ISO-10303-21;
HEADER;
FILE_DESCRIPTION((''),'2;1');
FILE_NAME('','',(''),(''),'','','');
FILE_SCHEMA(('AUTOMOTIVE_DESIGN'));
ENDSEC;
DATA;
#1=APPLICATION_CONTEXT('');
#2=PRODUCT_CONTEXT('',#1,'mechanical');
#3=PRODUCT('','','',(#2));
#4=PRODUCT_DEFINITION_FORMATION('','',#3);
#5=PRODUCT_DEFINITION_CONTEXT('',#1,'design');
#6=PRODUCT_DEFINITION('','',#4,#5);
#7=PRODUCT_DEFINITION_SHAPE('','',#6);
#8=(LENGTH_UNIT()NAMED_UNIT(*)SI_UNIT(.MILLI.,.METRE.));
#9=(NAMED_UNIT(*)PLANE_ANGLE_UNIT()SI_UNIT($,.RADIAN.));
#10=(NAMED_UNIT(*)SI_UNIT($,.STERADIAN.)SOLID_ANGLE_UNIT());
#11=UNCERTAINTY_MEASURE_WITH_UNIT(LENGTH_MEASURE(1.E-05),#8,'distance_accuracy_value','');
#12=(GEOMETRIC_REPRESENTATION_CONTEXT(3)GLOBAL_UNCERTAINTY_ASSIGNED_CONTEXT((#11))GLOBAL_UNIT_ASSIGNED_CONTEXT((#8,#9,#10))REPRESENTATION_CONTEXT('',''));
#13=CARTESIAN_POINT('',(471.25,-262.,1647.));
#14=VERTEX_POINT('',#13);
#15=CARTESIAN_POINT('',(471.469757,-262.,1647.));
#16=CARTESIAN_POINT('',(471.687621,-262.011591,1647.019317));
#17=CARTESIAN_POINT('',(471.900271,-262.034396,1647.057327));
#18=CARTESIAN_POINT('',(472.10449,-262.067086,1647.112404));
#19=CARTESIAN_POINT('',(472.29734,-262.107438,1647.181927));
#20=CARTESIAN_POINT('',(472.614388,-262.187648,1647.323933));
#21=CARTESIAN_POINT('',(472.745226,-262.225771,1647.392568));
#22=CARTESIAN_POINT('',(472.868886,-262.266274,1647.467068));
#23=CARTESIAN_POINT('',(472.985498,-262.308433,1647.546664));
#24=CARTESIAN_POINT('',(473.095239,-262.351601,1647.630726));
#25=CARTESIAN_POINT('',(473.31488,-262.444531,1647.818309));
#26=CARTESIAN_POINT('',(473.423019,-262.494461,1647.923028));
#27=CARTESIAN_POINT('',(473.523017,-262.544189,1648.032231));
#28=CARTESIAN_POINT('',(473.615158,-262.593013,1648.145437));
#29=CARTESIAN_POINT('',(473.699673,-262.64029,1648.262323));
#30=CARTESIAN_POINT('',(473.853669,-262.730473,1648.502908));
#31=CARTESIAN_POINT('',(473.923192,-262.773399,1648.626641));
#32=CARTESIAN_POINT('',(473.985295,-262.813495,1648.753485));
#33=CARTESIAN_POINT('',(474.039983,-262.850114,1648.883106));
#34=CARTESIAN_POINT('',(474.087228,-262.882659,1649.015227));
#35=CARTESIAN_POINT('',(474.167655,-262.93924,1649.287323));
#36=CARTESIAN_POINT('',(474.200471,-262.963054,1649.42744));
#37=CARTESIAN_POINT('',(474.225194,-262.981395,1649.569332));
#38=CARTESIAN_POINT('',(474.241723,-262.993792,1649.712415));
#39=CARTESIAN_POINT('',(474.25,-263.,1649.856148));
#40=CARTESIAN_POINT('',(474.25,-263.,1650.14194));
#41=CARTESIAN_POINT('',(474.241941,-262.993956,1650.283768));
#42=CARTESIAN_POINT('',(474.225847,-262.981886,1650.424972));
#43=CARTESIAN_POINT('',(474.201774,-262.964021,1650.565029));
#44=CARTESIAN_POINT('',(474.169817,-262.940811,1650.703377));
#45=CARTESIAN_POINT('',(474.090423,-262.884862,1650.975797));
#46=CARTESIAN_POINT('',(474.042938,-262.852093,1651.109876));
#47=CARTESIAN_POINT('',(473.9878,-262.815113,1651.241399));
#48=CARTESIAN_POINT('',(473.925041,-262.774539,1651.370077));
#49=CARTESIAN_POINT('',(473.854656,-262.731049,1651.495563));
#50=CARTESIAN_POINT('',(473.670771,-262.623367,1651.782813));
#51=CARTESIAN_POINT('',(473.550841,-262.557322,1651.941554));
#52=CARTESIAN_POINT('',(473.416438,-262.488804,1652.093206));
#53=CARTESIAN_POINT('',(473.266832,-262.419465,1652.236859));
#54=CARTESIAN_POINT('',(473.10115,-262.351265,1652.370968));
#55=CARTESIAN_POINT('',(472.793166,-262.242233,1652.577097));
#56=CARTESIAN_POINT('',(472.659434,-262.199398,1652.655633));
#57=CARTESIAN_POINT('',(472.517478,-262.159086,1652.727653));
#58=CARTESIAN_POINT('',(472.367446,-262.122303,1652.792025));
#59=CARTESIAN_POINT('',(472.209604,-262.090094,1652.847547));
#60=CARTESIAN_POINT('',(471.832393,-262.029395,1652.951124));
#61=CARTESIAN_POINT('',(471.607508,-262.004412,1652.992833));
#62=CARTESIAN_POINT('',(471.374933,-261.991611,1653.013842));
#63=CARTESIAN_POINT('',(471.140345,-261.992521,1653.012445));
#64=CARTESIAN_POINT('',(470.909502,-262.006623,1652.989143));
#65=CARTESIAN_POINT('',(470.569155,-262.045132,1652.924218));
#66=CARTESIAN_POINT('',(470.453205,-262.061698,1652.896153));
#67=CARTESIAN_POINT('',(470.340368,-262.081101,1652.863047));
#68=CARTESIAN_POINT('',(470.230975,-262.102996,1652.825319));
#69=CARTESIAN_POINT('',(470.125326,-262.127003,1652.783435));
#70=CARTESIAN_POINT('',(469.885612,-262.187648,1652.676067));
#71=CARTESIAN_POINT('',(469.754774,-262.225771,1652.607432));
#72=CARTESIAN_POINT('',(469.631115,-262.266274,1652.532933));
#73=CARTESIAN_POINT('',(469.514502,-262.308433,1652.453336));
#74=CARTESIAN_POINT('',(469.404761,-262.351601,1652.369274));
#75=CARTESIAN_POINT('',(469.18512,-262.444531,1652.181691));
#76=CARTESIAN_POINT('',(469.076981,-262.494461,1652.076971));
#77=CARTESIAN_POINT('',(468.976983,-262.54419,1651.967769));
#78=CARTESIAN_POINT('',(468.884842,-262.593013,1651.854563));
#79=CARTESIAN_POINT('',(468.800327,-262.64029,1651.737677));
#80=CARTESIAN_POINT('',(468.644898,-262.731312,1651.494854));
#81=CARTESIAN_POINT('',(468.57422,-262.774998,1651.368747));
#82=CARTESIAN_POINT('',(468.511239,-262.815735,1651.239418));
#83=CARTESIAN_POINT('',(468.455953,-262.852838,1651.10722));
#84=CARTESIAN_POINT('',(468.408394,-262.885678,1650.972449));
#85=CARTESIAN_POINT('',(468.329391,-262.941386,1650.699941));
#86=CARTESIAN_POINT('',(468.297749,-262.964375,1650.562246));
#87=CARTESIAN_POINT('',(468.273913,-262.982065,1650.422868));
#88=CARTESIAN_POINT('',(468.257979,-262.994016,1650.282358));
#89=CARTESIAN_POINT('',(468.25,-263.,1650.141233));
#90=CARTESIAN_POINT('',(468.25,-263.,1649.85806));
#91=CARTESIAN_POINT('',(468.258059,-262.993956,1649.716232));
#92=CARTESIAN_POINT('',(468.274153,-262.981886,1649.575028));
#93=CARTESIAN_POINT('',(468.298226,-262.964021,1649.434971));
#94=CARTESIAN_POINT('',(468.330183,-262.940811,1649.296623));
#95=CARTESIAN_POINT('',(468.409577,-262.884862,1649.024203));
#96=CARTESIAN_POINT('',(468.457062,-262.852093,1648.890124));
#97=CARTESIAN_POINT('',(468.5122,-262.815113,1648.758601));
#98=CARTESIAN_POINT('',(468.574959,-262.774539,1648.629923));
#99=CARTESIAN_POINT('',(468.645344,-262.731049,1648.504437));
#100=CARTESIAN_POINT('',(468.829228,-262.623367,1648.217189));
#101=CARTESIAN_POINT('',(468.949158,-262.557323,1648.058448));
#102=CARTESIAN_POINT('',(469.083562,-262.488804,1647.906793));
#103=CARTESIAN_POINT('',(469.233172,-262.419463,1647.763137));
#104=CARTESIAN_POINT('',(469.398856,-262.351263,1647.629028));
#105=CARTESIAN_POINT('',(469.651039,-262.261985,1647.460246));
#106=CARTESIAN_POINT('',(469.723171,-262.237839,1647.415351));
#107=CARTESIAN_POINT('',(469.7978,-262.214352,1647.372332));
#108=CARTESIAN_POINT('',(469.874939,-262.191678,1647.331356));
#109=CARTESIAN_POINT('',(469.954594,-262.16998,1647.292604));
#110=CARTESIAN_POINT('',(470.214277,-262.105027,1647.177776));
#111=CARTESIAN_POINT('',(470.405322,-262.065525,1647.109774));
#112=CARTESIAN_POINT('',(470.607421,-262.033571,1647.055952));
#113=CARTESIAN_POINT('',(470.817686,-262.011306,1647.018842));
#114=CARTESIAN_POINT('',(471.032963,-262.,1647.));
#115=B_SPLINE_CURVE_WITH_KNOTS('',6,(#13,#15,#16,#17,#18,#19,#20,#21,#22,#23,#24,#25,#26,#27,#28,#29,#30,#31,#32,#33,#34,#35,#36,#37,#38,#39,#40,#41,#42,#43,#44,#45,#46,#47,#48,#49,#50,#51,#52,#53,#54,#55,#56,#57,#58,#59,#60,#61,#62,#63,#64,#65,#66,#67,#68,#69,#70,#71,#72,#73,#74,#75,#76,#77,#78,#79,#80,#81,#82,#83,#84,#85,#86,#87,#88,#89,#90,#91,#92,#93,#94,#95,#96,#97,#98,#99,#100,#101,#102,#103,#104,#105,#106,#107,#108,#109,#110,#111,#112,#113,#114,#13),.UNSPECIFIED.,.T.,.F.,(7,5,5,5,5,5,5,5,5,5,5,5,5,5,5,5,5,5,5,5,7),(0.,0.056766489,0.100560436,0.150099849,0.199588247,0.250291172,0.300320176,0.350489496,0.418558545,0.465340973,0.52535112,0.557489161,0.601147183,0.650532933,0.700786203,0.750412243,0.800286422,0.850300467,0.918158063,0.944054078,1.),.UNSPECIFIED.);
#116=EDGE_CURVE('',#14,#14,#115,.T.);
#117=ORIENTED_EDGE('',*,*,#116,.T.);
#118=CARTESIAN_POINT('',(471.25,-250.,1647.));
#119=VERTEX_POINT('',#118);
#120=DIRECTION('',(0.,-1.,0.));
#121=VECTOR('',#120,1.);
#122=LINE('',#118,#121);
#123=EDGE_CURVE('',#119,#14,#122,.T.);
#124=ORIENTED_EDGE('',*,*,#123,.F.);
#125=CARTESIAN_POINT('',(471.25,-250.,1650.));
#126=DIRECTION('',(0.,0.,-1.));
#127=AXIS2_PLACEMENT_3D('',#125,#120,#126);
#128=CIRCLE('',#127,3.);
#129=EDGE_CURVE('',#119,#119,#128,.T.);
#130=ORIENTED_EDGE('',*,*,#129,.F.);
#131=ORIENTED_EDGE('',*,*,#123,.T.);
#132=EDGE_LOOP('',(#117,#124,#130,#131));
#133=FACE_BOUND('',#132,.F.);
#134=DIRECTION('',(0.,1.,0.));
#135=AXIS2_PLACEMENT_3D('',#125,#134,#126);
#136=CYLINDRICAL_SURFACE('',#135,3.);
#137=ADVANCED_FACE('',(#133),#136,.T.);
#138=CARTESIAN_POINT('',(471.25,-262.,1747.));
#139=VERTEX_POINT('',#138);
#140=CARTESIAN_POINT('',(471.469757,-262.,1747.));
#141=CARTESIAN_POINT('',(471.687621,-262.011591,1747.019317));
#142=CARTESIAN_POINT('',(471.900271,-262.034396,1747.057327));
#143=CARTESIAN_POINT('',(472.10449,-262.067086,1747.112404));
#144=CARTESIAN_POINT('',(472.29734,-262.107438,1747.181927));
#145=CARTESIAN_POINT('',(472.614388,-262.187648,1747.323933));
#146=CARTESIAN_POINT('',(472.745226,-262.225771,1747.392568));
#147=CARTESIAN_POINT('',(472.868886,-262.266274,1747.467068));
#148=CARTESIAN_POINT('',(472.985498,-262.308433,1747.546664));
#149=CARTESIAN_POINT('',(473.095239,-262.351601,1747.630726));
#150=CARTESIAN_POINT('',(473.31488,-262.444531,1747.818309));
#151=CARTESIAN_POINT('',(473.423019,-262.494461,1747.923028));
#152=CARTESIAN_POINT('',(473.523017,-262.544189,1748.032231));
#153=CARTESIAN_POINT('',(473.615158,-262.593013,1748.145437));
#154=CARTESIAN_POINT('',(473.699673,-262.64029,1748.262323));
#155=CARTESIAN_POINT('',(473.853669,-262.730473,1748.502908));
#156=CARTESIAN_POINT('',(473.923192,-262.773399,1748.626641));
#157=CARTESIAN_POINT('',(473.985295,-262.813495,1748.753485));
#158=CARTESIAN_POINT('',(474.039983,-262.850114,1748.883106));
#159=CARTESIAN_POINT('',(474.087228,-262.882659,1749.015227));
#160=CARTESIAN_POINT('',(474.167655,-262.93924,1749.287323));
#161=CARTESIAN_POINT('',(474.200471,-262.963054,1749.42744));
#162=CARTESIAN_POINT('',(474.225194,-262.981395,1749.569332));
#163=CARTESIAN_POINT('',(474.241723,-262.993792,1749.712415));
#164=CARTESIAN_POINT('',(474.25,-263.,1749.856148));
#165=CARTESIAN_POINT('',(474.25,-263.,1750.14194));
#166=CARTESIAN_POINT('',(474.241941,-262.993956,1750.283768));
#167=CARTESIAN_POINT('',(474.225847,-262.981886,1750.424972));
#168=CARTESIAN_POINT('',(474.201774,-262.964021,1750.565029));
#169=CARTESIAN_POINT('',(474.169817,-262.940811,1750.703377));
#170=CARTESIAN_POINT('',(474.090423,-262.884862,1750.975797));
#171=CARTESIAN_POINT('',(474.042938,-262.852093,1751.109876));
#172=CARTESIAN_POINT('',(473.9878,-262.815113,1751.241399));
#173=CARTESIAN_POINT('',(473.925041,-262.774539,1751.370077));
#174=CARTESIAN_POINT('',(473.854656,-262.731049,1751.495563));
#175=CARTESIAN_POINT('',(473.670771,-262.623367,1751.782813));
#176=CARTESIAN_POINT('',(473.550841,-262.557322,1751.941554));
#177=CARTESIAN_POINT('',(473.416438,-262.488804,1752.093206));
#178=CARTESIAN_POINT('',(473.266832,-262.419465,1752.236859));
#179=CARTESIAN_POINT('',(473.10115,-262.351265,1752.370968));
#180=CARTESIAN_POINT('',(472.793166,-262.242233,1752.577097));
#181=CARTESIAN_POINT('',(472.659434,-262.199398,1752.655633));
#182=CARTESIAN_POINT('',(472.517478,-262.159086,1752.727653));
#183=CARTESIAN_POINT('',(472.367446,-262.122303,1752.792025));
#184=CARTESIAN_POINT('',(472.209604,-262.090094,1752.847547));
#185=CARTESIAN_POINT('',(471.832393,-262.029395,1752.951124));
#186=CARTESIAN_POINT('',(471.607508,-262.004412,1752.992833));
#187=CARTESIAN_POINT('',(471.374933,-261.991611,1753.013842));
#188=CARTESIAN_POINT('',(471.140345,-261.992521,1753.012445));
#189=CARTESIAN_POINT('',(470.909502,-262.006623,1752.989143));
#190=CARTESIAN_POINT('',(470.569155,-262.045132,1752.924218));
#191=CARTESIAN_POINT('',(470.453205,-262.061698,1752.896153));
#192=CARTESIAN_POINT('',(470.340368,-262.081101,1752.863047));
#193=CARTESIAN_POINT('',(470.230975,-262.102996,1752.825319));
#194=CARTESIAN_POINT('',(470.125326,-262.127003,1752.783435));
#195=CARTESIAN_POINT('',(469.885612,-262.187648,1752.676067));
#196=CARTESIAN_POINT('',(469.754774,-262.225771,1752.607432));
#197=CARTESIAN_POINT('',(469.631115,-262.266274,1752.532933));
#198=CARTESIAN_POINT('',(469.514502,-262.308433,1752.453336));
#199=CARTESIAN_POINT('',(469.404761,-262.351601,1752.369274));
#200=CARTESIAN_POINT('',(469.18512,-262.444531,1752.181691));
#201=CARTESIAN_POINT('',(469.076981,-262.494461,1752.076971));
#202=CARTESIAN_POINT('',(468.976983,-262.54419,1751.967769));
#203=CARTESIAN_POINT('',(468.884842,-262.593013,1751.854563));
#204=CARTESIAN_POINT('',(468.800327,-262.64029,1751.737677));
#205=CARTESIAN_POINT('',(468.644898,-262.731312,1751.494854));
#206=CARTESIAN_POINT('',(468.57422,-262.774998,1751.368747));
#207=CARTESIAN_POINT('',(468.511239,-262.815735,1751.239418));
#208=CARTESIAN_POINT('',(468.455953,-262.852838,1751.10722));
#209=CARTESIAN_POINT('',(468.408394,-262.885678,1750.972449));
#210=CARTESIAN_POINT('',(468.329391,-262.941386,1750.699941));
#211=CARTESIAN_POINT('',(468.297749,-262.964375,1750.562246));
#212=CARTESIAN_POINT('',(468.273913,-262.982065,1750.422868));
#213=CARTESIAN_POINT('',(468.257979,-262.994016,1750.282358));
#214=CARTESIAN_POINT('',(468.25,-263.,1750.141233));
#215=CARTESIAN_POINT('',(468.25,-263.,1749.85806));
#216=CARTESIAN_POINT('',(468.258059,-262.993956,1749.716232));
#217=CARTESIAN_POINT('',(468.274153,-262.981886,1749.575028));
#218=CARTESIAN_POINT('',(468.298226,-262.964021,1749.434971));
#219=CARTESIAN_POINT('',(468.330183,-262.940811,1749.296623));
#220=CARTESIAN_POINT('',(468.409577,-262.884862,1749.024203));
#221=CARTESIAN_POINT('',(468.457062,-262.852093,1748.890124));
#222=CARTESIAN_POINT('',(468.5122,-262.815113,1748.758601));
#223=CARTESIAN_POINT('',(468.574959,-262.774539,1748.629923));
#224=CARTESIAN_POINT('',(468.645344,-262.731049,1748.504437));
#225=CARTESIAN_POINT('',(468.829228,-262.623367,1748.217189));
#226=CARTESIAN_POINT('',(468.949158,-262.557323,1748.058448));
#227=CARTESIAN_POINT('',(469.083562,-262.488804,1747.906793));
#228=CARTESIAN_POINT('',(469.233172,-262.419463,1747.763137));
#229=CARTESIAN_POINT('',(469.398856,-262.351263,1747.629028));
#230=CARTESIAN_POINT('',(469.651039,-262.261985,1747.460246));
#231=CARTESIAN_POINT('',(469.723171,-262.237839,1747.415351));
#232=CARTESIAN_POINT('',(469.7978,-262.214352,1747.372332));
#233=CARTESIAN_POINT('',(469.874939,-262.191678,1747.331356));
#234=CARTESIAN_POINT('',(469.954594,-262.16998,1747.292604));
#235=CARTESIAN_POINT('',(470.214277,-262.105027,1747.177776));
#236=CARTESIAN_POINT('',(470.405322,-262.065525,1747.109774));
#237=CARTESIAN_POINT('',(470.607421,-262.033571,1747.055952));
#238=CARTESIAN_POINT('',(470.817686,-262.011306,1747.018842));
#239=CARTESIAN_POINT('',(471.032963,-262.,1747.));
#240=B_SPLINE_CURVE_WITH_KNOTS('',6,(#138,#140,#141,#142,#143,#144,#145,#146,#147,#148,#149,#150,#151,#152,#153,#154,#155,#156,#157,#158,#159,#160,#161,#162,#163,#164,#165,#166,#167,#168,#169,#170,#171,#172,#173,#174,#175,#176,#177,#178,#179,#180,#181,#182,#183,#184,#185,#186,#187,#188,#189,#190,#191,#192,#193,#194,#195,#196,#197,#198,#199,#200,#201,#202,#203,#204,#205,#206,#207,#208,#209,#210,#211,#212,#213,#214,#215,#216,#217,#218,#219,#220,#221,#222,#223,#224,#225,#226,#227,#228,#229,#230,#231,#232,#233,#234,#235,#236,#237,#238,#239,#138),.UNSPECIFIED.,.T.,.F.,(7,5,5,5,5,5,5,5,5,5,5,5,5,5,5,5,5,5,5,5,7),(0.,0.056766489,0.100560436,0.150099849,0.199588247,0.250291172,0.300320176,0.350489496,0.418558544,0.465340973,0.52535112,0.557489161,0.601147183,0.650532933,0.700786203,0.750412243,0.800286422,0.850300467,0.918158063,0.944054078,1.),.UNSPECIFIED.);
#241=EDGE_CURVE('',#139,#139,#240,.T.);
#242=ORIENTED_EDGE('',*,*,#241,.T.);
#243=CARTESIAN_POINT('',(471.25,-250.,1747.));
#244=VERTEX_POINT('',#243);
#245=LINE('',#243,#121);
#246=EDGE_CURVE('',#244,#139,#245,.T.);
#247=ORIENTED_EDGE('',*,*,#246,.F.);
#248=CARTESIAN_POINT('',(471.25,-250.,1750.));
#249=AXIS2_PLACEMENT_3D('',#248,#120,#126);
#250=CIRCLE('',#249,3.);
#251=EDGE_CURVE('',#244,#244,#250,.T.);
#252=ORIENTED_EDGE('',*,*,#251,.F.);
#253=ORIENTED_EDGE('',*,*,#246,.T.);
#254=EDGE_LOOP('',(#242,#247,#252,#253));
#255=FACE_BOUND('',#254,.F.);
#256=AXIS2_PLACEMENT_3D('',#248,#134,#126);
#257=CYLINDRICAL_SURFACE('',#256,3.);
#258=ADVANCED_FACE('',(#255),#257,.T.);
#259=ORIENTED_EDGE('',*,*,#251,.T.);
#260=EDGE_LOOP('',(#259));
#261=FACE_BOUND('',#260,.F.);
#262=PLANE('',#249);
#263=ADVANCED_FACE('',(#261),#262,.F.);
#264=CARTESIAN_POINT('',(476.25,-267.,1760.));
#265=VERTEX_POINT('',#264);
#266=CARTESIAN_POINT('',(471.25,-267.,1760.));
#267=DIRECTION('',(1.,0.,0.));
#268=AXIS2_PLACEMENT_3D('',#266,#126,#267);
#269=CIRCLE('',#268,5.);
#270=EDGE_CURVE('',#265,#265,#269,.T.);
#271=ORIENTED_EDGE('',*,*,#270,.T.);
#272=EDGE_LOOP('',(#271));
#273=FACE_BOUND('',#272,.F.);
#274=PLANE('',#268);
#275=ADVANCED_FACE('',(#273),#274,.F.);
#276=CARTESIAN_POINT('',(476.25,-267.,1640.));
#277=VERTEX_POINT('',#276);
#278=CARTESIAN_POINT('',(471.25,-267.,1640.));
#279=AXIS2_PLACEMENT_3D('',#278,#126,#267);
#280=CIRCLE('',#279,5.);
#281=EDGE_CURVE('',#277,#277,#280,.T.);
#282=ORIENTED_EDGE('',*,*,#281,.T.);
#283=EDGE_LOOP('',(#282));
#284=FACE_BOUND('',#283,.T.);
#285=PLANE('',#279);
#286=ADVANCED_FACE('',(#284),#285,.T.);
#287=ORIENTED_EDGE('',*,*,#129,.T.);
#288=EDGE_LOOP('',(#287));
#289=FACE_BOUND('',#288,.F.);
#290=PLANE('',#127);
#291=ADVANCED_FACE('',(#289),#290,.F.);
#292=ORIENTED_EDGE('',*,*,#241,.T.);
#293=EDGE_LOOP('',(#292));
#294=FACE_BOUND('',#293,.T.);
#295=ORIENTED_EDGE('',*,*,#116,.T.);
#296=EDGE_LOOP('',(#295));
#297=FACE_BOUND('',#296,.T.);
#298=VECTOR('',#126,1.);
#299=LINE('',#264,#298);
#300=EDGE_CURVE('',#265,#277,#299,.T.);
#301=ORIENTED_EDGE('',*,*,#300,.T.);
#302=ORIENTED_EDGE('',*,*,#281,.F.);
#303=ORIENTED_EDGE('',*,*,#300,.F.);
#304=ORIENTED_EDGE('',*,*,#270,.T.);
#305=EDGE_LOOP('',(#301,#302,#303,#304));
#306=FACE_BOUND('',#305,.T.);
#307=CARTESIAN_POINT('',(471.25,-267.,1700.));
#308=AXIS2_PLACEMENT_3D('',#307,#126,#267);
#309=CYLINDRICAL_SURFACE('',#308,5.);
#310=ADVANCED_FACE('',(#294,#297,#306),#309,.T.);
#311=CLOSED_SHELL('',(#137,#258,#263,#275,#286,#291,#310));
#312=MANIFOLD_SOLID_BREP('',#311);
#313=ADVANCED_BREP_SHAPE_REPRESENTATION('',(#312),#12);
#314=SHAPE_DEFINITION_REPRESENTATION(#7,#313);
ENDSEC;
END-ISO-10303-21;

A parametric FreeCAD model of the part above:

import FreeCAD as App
import Part
import Sketcher

V = App.Vector

doc = App.newDocument("Part")
body = doc.addObject("PartDesign::Body", "Body")

sketch1 = doc.addObject("Sketcher::SketchObject", "Sketch")
body.addObject(sketch1)
sketch1.AttachmentSupport = (doc.XY_Plane, [""])
sketch1.MapMode = "FlatFace"
sketch1.addGeometry(Part.Circle(V(471.25, -267, 0), V(0, 0, 1), 5), False)
sketch1.addConstraint([
    Sketcher.Constraint("Diameter", 0, 10.0),
    Sketcher.Constraint("DistanceY", 0, 3, -1, 1, 267.0),
    Sketcher.Constraint("DistanceX", -1, 1, 0, 3, 471.25),
])
pad1 = doc.addObject("PartDesign::Pad", "Pad")
body.addObject(pad1)
pad1.Profile = sketch1
pad1.Length = 120
pad1.Midplane = True
body2 = doc.addObject("PartDesign::Body", "Body001")

sketch2 = doc.addObject("Sketcher::SketchObject", "Sketch001")
body2.addObject(sketch2)
sketch2.AttachmentSupport = (doc.getObject("XZ_Plane001"), [""])
sketch2.MapMode = "FlatFace"
sketch2.AttachmentOffset = App.Placement(V(0, 0, 250), App.Rotation())
sketch2.addGeometry(Part.Circle(V(471.25, -50, 0), V(0, 0, 1), 3), False)
sketch2.addConstraint([
    Sketcher.Constraint("Diameter", 0, 6.0),
    Sketcher.Constraint("DistanceY", 0, 3, -1, 1, 50.0),
    Sketcher.Constraint("DistanceX", -1, 1, 0, 3, 471.25),
])
pad2 = doc.addObject("PartDesign::Pad", "Pad001")
body2.addObject(pad2)
pad2.Profile = sketch2
pad2.Length = 17
body3 = doc.addObject("PartDesign::Body", "Body002")

sketch3 = doc.addObject("Sketcher::SketchObject", "Sketch002")
body3.addObject(sketch3)
sketch3.AttachmentSupport = (doc.getObject("XZ_Plane002"), [""])
sketch3.MapMode = "FlatFace"
sketch3.AttachmentOffset = App.Placement(V(0, 0, 250), App.Rotation())
sketch3.addGeometry(Part.Circle(V(471.25, 50, 0), V(0, 0, 1), 3), False)
sketch3.addConstraint([
    Sketcher.Constraint("Diameter", 0, 6.0),
    Sketcher.Constraint("DistanceY", -1, 1, 0, 3, 50.0),
    Sketcher.Constraint("DistanceX", -1, 1, 0, 3, 471.25),
])
pad3 = doc.addObject("PartDesign::Pad", "Pad002")
body3.addObject(pad3)
pad3.Profile = sketch3
pad3.Length = 17
doc.recompute()

boolean = doc.addObject("PartDesign::Boolean", "Boolean")
body3.addObject(boolean)
boolean.Type = "Fuse"
boolean.addObjects([body])
doc.recompute()

boolean2 = doc.addObject("PartDesign::Boolean", "Boolean001")
body3.addObject(boolean2)
boolean2.Type = "Fuse"
boolean2.addObjects([body2])
body4 = doc.addObject("PartDesign::Body", "Body003")
doc.recompute()

body3.Placement = App.Placement(V(0, 0, 1700), App.Rotation(V(0, 0, 1), 0))
boolean3 = doc.addObject("PartDesign::Boolean", "Boolean002")
body4.addObject(boolean3)
boolean3.Type = "Fuse"
boolean3.addObjects([body3])

doc.recompute()
